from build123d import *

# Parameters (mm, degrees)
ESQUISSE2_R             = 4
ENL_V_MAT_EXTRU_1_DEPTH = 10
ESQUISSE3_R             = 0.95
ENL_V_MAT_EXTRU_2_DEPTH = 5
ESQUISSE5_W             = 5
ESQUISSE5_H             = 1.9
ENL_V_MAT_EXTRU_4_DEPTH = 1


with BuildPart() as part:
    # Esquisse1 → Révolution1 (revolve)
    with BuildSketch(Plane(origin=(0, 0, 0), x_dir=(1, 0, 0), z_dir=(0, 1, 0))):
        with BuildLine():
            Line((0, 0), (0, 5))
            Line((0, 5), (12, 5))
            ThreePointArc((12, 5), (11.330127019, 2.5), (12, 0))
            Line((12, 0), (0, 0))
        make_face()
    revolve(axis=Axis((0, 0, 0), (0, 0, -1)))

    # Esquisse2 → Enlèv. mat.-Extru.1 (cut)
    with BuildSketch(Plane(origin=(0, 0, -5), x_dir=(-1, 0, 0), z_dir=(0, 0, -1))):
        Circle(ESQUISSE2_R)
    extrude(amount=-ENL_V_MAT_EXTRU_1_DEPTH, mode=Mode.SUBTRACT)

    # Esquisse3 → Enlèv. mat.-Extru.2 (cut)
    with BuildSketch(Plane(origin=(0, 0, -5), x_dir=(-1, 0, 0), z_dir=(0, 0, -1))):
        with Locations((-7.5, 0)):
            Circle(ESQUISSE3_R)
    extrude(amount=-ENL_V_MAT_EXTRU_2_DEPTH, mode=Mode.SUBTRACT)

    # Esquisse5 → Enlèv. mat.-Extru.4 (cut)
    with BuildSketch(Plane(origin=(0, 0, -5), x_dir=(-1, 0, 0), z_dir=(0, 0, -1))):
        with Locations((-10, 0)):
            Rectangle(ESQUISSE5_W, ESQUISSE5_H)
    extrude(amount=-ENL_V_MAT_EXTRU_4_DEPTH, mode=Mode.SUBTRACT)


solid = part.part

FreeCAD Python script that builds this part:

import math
import FreeCAD as App
import Part
import Sketcher


def add_polygon(sketch, points):
    """Adds a closed chain of lines whose ends are joined by coincident constraints."""
    first, n = sketch.GeometryCount, len(points)
    for a, b in zip(points, points[1:] + points[:1]):
        sketch.addGeometry(Part.LineSegment(App.Vector(*a, 0), App.Vector(*b, 0)), False)
    for i in range(n):
        sketch.addConstraint(Sketcher.Constraint("Coincident", first + i, 2, first + (i + 1) % n, 1))

doc = App.newDocument("Part")
body = doc.addObject("PartDesign::Body", "Body")

sketch1 = body.newObject("Sketcher::SketchObject", "Sketch")
sketch1.AttachmentSupport = (doc.getObject("XZ_Plane"), [""])
sketch1.MapMode = "FlatFace"
sketch1.addGeometry([
    Part.LineSegment(App.Vector(0, -5, 0), App.Vector(0, 0, 0)),
    Part.LineSegment(App.Vector(0, 0, 0), App.Vector(12, 0, 0)),
    Part.ArcOfCircle(Part.Circle(App.Vector(16, -2, 0), App.Vector(0, 0, 1), 5), math.radians(150), math.radians(210)),
    Part.LineSegment(App.Vector(12, -5, 0), App.Vector(0, -5, 0)),
], False)
sketch1.addConstraint([
    Sketcher.Constraint("Coincident", 0, 2, 1, 1),
    Sketcher.Constraint("Coincident", 1, 2, 2, 1),
    Sketcher.Constraint("Coincident", 2, 2, 3, 1),
    Sketcher.Constraint("Coincident", 3, 2, 0, 1),
    Sketcher.Constraint("Vertical", 0),
    Sketcher.Constraint("Horizontal", 1),
    Sketcher.Constraint("Horizontal", 3),
    Sketcher.Constraint("Coincident", 0, 2, -1, 1),
    Sketcher.Constraint("Vertical", 1, 2, 2, 2),
    Sketcher.Constraint("Radius", 2, 5.0),
    Sketcher.Constraint("DistanceX", 1, 1, 1, 2, 12.0),
    Sketcher.Constraint("DistanceY", 0, 1, 0, 2, 5.0),
])
revolution = body.newObject("PartDesign::Revolution", "Revolution")
revolution.Profile = sketch1
revolution.ReferenceAxis = (sketch1, ["V_Axis"])
revolution.Angle = 360

sketch2 = body.newObject("Sketcher::SketchObject", "Sketch001")
sketch2.AttachmentSupport = (doc.getObject("XY_Plane"), [""])
sketch2.MapMode = "FlatFace"
sketch2.AttachmentOffset = App.Placement(App.Vector(0, 0, -5), App.Rotation())
sketch2.addGeometry(Part.Circle(App.Vector(0, 0, 0), App.Vector(0, 0, 1), 4), False)
sketch2.addConstraint([
    Sketcher.Constraint("Coincident", 0, 3, -1, 1),
    Sketcher.Constraint("Diameter", 0, 8.0),
])
pocket1 = body.newObject("PartDesign::Pocket", "Pocket")
pocket1.Profile = sketch2
pocket1.Length = 10
pocket1.Reversed = True

sketch3 = body.newObject("Sketcher::SketchObject", "Sketch002")
sketch3.AttachmentSupport = (doc.getObject("XY_Plane"), [""])
sketch3.MapMode = "FlatFace"
sketch3.AttachmentOffset = App.Placement(App.Vector(0, 0, -5), App.Rotation())
sketch3.addGeometry(Part.Circle(App.Vector(7.5, 0, 0), App.Vector(0, 0, 1), 0.9), False)
sketch3.addConstraint([
    Sketcher.Constraint("PointOnObject", 0, 3, -1),
    Sketcher.Constraint("Diameter", 0, 1.9),
    Sketcher.Constraint("DistanceX", -1, 1, 0, 3, 7.5),
])
pocket2 = body.newObject("PartDesign::Pocket", "Pocket001")
pocket2.Profile = sketch3
pocket2.Length = 5
pocket2.Reversed = True

sketch4 = body.newObject("Sketcher::SketchObject", "Sketch003")
sketch4.AttachmentSupport = (doc.getObject("XY_Plane"), [""])
sketch4.MapMode = "FlatFace"
sketch4.AttachmentOffset = App.Placement(App.Vector(0, 0, -5), App.Rotation())
add_polygon(sketch4, [(12.5, 0.9), (12.5, -0.9), (7.5, -0.9), (7.5, 0.9)])
sketch4.addConstraint([
    Sketcher.Constraint("Vertical", 0),
    Sketcher.Constraint("Horizontal", 1),
    Sketcher.Constraint("Vertical", 2),
    Sketcher.Constraint("Horizontal", 3),
    Sketcher.Constraint("DistanceX", 1, 2, 1, 1, 5.0),
    Sketcher.Constraint("DistanceY", 0, 2, 0, 1, 1.9),
    Sketcher.Constraint("DistanceX", -1, 1, 0, 2, 12.5),
    Sketcher.Constraint("DistanceY", 0, 2, -1, 1, 0.95),
])
pocket3 = body.newObject("PartDesign::Pocket", "Pocket002")
pocket3.Profile = sketch4
pocket3.Length = 1
pocket3.Reversed = True

doc.recompute()
